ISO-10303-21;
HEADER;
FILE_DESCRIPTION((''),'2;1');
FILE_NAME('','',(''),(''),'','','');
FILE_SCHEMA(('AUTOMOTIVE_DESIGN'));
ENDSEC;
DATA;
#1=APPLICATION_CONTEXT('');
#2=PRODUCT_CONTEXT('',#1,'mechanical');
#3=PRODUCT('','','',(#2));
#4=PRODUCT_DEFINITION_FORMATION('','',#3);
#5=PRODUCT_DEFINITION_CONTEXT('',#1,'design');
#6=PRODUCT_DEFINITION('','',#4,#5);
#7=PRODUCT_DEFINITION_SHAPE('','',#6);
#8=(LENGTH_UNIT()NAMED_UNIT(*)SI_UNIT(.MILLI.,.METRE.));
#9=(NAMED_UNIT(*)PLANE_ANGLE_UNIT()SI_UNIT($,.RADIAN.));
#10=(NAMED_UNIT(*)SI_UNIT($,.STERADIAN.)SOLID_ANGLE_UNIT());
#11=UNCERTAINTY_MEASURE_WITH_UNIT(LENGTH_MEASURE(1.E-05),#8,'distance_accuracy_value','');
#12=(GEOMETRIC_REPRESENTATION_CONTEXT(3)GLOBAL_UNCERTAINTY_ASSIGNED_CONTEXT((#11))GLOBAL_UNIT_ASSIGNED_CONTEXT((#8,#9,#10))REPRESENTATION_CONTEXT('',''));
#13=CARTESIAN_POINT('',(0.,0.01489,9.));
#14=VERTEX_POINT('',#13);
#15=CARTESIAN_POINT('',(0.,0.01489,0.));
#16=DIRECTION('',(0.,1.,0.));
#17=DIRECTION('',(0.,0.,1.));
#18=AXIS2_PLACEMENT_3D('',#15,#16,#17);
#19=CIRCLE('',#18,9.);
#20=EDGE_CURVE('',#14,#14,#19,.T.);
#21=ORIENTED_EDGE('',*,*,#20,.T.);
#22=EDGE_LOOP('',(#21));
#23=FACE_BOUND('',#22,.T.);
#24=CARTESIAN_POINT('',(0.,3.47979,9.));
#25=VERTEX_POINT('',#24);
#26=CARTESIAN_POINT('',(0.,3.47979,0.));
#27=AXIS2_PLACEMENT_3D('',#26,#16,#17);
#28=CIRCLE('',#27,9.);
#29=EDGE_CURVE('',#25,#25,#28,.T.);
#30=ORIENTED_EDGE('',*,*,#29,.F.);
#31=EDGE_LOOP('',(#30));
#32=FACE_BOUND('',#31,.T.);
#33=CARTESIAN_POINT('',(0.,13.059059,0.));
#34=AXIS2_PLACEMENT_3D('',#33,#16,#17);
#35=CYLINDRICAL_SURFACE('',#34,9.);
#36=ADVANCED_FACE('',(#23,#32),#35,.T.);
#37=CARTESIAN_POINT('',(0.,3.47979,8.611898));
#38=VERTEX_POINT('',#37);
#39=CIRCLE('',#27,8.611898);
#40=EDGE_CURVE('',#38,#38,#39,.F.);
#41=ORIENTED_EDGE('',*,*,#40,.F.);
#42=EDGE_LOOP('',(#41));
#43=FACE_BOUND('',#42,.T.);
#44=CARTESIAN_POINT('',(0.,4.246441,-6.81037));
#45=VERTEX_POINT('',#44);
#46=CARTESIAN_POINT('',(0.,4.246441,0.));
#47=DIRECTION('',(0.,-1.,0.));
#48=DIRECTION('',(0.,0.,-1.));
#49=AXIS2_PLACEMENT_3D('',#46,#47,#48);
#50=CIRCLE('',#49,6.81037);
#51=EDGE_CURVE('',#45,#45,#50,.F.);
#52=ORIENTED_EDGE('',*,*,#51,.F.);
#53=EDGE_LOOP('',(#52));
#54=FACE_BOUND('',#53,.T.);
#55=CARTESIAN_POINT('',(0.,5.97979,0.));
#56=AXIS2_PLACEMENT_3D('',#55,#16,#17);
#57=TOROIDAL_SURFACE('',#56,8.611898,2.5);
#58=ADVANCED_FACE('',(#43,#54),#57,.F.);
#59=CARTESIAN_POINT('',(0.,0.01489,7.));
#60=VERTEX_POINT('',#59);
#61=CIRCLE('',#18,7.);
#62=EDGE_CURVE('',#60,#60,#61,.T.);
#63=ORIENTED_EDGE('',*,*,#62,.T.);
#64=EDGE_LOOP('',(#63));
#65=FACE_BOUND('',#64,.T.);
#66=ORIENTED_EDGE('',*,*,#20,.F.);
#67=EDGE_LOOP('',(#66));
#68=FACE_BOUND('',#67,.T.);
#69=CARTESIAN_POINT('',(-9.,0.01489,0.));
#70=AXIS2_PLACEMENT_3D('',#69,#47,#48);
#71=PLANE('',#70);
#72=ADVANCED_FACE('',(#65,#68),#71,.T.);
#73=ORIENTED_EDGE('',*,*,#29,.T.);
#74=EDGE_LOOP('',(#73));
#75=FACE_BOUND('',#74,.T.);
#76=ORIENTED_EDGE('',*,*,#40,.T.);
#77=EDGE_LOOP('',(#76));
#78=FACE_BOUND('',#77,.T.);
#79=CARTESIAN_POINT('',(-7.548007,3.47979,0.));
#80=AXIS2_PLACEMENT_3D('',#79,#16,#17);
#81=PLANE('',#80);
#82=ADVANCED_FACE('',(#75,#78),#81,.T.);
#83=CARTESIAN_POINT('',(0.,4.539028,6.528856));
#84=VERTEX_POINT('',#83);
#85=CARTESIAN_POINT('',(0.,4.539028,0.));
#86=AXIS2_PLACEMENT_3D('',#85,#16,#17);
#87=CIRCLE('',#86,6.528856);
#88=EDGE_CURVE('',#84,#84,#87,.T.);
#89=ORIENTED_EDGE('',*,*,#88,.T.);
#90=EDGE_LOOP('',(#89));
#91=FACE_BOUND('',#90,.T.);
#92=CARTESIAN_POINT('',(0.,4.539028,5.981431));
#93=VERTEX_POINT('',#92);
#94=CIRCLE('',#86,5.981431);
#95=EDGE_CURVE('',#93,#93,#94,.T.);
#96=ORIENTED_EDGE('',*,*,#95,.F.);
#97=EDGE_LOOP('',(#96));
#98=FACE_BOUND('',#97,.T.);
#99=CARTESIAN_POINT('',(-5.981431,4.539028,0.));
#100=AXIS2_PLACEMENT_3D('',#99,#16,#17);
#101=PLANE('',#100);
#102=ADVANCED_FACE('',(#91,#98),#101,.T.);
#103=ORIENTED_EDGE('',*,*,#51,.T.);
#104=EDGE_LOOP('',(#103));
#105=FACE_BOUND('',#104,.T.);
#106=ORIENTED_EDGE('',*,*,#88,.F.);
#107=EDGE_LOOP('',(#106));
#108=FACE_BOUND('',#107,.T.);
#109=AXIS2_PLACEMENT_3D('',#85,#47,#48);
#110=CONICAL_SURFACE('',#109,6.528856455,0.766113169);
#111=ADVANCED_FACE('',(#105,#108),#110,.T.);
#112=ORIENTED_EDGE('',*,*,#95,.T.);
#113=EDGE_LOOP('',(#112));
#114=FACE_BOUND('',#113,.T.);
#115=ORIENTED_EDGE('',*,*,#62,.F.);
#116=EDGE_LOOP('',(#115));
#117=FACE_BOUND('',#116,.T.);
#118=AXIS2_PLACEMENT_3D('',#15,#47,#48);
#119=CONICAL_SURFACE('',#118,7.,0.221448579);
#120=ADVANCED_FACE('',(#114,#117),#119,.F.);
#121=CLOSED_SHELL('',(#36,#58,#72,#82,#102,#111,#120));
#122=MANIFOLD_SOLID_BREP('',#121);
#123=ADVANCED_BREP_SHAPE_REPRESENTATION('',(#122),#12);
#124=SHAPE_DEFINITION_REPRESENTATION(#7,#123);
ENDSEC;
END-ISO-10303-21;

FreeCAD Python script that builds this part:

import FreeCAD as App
import Part
import Sketcher
from FreeCAD import Vector


def edges_at(feature, points):
    """Names of the edges that pass closest to the given points."""
    edges = feature.Shape.Edges
    near = lambda p: min(range(len(edges)), key=lambda i: edges[i].distToShape(Part.Vertex(*p))[0])
    return sorted({f"Edge{near(p) + 1}" for p in points})


def add_polygon(sketch, points):
    """Adds a closed chain of lines whose ends are joined by coincident constraints."""
    first, n = sketch.GeometryCount, len(points)
    for a, b in zip(points, points[1:] + points[:1]):
        sketch.addGeometry(Part.LineSegment(App.Vector(*a, 0), App.Vector(*b, 0)), False)
    for i in range(n):
        sketch.addConstraint(Sketcher.Constraint("Coincident", first + i, 2, first + (i + 1) % n, 1))

doc = App.newDocument("Part")
body = doc.addObject("PartDesign::Body", "Body")

# Sketch on XY plane
sketch1 = doc.addObject("Sketcher::SketchObject", "Sketch")
body.addObject(sketch1)
sketch1.AttachmentSupport = (doc.XY_Plane, [""])
sketch1.MapMode = "FlatFace"
add_polygon(sketch1, [(-7, 0), (-6, 4.5), (-6.5, 4.5), (-7.5, 3.5), (-9, 3.5), (-9, 0)])  # lines 0-5
sketch1.addConstraint([
    Sketcher.Constraint("Horizontal", 1),
    Sketcher.Constraint("Horizontal", 3),
    Sketcher.Constraint("Vertical", 4),
    Sketcher.Constraint("Horizontal", 5),
    Sketcher.Constraint("DistanceX", 5, 1, 5, 2, 2.0),
    Sketcher.Constraint("DistanceX", 3, 2, -1, 1, 9.0),
    Sketcher.Constraint("DistanceY", 4, 2, 4, 1, 3.464901),
    Sketcher.Constraint("Distance", 0, 4.637382),
    Sketcher.Constraint("DistanceX", 1, 2, 1, 1, 0.547425),
    Sketcher.Constraint("DistanceX", 3, 2, 3, 1, 1.451993),
    Sketcher.Constraint("DistanceX", 0, 2, -1, 1, 5.981431),
    Sketcher.Constraint("DistanceY", -1, 1, 2, 2, 3.47979),
])
revolution = doc.addObject("PartDesign::Revolution", "Revolution")
body.addObject(revolution)
revolution.Profile = sketch1
revolution.ReferenceAxis = (sketch1, ["V_Axis"])
revolution.Angle = 360
doc.recompute()

fillet = doc.addObject("PartDesign::Fillet", "Fillet")
body.addObject(fillet)
fillet.Base = (revolution, edges_at(revolution, [(0, 3.48, -7.548)]))
fillet.Radius = 2.5

doc.recompute()
